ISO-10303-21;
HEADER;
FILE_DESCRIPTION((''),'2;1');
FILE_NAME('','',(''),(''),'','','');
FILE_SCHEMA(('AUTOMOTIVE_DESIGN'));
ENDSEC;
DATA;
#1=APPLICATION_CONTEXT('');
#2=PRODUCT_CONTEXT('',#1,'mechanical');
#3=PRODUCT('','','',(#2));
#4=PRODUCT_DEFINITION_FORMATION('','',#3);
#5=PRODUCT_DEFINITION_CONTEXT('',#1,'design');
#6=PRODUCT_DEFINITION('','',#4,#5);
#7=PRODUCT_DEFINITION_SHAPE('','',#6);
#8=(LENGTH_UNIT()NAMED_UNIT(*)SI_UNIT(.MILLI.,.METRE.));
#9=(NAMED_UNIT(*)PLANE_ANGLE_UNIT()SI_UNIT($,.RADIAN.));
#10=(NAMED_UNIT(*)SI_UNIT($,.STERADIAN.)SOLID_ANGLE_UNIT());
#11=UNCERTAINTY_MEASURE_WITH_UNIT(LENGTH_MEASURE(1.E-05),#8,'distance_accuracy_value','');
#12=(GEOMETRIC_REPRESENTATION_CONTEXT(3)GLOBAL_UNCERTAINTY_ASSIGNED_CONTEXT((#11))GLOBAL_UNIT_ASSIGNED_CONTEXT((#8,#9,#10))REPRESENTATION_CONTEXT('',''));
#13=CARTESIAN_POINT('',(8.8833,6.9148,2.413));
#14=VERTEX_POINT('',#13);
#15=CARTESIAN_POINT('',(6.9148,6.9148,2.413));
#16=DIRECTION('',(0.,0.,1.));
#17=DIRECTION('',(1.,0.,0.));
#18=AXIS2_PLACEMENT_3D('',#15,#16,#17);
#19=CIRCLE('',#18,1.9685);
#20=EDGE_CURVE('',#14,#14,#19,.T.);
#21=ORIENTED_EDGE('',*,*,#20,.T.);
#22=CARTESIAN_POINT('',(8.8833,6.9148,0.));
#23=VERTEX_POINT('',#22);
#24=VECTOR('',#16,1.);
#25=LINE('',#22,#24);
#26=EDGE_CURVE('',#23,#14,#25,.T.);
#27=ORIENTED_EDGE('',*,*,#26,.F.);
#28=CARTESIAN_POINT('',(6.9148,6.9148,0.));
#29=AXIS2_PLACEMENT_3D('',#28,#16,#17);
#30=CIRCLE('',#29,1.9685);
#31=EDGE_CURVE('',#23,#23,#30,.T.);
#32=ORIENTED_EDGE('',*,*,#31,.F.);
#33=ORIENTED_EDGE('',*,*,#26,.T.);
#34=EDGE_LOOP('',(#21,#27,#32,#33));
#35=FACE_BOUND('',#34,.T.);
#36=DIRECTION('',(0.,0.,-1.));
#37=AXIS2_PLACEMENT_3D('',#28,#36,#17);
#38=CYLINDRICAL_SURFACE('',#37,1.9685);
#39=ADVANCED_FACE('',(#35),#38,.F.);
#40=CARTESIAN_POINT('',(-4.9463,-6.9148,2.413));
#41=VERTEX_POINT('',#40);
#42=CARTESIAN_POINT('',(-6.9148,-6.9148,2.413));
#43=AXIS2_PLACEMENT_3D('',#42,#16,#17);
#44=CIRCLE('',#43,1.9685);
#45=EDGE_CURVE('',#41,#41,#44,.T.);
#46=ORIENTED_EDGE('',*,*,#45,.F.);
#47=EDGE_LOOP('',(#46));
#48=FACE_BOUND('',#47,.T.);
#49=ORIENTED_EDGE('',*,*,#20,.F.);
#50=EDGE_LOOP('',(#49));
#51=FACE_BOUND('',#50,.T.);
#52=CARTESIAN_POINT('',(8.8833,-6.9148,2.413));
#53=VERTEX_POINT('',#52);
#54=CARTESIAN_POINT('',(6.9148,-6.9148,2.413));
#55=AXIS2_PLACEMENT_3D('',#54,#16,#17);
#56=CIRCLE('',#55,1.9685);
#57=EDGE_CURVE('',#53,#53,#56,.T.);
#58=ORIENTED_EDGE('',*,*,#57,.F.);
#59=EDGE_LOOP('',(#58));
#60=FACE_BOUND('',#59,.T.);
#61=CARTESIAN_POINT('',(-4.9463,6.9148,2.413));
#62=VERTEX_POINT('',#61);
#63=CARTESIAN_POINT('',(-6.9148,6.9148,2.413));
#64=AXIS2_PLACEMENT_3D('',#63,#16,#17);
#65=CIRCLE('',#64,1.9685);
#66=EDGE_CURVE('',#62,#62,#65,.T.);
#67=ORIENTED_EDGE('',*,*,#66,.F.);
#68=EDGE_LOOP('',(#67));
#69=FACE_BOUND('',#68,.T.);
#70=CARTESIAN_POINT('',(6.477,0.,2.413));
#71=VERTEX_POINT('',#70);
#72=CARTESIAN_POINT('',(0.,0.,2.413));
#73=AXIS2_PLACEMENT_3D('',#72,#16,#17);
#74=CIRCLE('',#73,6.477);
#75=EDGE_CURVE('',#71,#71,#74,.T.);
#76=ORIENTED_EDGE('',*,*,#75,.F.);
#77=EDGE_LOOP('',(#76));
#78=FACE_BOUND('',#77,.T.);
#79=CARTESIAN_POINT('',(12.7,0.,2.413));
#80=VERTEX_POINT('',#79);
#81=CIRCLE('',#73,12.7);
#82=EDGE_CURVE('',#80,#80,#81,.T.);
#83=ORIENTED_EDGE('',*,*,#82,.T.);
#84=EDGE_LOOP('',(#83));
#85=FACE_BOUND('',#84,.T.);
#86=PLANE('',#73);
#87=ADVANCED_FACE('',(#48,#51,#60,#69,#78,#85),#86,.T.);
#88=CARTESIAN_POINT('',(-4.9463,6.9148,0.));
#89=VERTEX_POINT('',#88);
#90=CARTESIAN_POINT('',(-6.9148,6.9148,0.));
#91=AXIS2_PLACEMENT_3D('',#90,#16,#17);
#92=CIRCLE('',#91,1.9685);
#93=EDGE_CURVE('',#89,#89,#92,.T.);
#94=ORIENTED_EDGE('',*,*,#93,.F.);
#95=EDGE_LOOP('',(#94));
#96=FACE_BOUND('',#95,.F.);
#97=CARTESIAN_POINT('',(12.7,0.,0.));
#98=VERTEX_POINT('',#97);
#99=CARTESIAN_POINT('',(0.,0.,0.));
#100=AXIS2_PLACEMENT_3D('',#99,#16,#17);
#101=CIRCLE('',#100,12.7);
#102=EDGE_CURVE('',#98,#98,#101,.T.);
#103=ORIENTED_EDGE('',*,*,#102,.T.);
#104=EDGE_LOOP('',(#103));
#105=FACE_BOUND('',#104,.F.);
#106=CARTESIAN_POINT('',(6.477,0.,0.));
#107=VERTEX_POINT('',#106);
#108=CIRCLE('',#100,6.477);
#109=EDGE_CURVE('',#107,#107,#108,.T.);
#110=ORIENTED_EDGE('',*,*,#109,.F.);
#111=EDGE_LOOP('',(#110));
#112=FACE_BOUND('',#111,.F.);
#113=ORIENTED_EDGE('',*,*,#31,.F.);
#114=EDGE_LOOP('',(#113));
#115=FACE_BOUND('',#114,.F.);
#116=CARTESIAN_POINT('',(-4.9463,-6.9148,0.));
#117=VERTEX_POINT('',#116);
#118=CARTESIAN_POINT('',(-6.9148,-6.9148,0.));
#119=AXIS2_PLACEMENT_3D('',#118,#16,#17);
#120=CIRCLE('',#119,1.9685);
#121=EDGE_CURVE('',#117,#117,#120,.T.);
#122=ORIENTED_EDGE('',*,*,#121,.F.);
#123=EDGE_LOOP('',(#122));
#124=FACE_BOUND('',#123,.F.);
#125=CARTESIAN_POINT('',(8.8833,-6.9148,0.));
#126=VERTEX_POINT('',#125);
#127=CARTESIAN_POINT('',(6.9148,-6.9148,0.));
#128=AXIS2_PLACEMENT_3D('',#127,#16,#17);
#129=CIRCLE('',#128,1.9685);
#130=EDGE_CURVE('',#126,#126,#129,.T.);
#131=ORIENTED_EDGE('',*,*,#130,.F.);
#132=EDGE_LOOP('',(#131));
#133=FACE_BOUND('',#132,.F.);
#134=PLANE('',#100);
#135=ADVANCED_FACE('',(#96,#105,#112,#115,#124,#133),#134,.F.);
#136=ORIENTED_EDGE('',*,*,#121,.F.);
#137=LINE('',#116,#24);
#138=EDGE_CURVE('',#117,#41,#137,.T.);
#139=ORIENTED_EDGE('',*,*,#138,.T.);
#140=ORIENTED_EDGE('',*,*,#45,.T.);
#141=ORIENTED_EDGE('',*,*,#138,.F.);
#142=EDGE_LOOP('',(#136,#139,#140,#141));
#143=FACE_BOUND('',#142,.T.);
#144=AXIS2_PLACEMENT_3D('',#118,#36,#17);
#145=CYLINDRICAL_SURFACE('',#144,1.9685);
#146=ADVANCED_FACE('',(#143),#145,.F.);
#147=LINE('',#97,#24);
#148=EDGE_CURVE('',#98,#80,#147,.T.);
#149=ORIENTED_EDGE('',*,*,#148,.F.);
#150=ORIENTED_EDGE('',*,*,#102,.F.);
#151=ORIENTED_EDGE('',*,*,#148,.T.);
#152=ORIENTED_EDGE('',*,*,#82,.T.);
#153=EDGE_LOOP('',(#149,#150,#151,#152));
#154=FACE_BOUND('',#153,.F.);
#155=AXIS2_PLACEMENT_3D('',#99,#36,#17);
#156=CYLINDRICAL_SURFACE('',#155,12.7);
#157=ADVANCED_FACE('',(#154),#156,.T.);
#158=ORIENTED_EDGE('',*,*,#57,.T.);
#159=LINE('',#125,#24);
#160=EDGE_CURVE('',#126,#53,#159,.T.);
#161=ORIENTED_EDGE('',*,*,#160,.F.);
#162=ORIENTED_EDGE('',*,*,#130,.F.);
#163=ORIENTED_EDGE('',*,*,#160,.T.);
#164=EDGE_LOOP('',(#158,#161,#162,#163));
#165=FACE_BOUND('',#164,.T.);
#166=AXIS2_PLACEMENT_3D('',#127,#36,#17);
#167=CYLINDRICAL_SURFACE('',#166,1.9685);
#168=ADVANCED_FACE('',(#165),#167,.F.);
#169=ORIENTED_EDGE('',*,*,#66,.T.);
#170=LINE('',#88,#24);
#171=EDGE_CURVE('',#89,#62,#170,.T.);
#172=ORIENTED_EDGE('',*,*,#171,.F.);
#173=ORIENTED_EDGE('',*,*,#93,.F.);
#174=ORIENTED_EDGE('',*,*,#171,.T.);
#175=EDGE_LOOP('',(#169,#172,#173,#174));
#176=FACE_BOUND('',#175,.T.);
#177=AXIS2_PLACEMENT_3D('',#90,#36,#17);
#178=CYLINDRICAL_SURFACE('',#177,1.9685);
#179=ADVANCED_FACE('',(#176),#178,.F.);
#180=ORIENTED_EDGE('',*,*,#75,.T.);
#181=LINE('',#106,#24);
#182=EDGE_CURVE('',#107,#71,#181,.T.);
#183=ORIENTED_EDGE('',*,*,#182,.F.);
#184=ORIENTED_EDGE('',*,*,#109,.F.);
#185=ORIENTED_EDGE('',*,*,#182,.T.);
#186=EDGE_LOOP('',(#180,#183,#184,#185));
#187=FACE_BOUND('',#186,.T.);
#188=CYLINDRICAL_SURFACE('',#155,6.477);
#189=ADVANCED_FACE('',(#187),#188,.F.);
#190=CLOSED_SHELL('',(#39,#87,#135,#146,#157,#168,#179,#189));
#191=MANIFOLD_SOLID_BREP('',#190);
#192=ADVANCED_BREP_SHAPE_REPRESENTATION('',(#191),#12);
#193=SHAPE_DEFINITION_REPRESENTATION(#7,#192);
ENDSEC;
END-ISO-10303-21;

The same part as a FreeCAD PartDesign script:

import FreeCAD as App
import Part
import Sketcher
Q = App.Units.Quantity

doc = App.newDocument("Part")
body = doc.addObject("PartDesign::Body", "Body")

sketch1 = doc.addObject("Sketcher::SketchObject", "Sketch")
body.addObject(sketch1)
sketch1.AttachmentSupport = (doc.XY_Plane, [""])
sketch1.MapMode = "FlatFace"
sketch1.addGeometry([
    Part.Circle(App.Vector(0, 0, 0), App.Vector(0, 0, 1), 12.7),
    Part.Circle(App.Vector(-6.9, -6.9, 0), App.Vector(0, 0, 1), 2),
    Part.Circle(App.Vector(0, 0, 0), App.Vector(0, 0, 1), 6.5),
    Part.Circle(App.Vector(6.9, -6.9, 0), App.Vector(0, 0, 1), 2),
    Part.Circle(App.Vector(-6.9, 6.9, 0), App.Vector(0, 0, 1), 2),
    Part.Circle(App.Vector(6.9, 6.9, 0), App.Vector(0, 0, 1), 2),
], False)
sketch1.addConstraint([
    Sketcher.Constraint("Coincident", 0, 3, -1, 1),
    Sketcher.Constraint("Coincident", 2, 3, -1, 1),
    Sketcher.Constraint("Equal", 1, 3),
    Sketcher.Constraint("Equal", 3, 4),
    Sketcher.Constraint("Equal", 4, 5),
    Sketcher.Constraint("Symmetric", 3, 3, 4, 3, -1, 1),
    Sketcher.Constraint("Symmetric", 1, 3, 5, 3, -1, 1),
    Sketcher.Constraint("Symmetric", 1, 3, 3, 3, -2),
    Sketcher.Constraint("Diameter", 0, Q("1 in")),
    Sketcher.Constraint("Diameter", 2, Q("0.51 in")),
    Sketcher.Constraint("Diameter", 1, Q("0.155 in")),
    Sketcher.Constraint("DistanceX", 1, 3, -1, 1, 6.9148),
    Sketcher.Constraint("DistanceY", 1, 3, -1, 1, 6.9148),
])
pad1 = doc.addObject("PartDesign::Pad", "Pad")
body.addObject(pad1)
pad1.Profile = sketch1
pad1.Length = Q("0.095 in")

doc.recompute()
